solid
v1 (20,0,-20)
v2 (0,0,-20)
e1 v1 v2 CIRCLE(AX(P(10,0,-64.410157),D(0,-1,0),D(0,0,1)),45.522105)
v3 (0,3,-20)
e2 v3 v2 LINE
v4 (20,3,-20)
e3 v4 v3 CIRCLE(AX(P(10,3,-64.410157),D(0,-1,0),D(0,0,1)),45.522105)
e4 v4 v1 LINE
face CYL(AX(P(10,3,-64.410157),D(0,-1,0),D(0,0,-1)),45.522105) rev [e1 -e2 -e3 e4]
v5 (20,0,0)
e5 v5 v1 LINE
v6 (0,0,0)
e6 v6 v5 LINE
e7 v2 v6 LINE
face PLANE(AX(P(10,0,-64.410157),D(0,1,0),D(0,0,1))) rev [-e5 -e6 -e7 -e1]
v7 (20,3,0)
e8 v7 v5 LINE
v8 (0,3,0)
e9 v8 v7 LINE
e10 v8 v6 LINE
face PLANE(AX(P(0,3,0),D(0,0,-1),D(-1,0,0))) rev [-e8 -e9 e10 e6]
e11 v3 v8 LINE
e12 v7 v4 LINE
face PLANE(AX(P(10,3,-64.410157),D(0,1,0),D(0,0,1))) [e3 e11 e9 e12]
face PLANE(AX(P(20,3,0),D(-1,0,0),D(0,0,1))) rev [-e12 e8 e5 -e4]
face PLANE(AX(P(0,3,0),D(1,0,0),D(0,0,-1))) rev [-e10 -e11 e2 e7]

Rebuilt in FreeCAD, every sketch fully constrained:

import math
import FreeCAD as App
import Part
import Sketcher
from FreeCAD import Vector

doc = App.newDocument("Part")
body = doc.addObject("PartDesign::Body", "Body")

# Sketch on XZ plane
sketch1 = body.newObject("Sketcher::SketchObject", "Sketch")
sketch1.AttachmentSupport = (doc.getObject("XZ_Plane"), [""])
sketch1.MapMode = "FlatFace"
sketch1.addGeometry(Part.LineSegment(Vector(0, 0, 0), Vector(20, 0, 0)), False)
sketch1.addGeometry(Part.LineSegment(Vector(20, 0, 0), Vector(20, -20, 0)), False)
sketch1.addGeometry(Part.ArcOfCircle(Part.Circle(Vector(10, -64.410157, 0), Vector(0, 0, 1), 45.522105), math.radians(77.310143), math.radians(102.689857)), False)
sketch1.addGeometry(Part.LineSegment(Vector(0, -20, 0), Vector(0, 0, 0)), False)
sketch1.addConstraint(Sketcher.Constraint("Coincident", 0, 2, 1, 1))
sketch1.addConstraint(Sketcher.Constraint("Coincident", 1, 2, 2, 1))
sketch1.addConstraint(Sketcher.Constraint("Coincident", 2, 2, 3, 1))
sketch1.addConstraint(Sketcher.Constraint("Coincident", 3, 2, 0, 1))
sketch1.addConstraint(Sketcher.Constraint("Horizontal", 0))
sketch1.addConstraint(Sketcher.Constraint("Vertical", 1))
sketch1.addConstraint(Sketcher.Constraint("Vertical", 3))
sketch1.addConstraint(Sketcher.Constraint("Coincident", 3, 2, -1, 1))
sketch1.addConstraint(Sketcher.Constraint("Horizontal", 1, 2, 2, 2))
sketch1.addConstraint(Sketcher.Constraint("Equal", 0, 1))
sketch1.addConstraint(Sketcher.Constraint("DistanceX", 0, 1, 0, 2, 20.0))
sketch1.addConstraint(Sketcher.Constraint("Radius", 2, 45.522105))
pad1 = body.newObject("PartDesign::Pad", "Pad")
pad1.Profile = sketch1
pad1.Length = 3
pad1.Reversed = True

doc.recompute()
